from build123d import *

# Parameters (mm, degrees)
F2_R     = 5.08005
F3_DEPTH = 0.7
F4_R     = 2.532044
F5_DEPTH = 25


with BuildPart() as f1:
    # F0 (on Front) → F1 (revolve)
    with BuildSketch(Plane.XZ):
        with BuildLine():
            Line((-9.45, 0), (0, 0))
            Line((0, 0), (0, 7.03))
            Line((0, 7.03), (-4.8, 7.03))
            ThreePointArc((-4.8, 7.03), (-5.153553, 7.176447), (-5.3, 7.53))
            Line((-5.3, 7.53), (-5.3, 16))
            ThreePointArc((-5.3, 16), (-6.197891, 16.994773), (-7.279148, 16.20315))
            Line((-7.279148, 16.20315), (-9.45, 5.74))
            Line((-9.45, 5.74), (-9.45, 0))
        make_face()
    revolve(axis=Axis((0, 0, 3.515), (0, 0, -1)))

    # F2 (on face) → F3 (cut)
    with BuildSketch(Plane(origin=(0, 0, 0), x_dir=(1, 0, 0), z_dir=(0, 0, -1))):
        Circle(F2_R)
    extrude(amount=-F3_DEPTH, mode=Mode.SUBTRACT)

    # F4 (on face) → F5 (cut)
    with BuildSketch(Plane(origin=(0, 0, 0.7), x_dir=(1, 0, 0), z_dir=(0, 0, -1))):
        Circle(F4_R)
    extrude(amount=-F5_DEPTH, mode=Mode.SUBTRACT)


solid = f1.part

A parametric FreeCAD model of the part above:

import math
import FreeCAD as App
import Part
import Sketcher
from FreeCAD import Vector
Q = App.Units.Quantity

doc = App.newDocument("Part")
body = doc.addObject("PartDesign::Body", "Body")

sketch1 = body.newObject("Sketcher::SketchObject", "Sketch")
sketch1.AttachmentSupport = (doc.getObject("XZ_Plane"), [""])
sketch1.MapMode = "FlatFace"
sketch1.addGeometry(Part.LineSegment(Vector(-9.45, 0, 0), Vector(0, 0, 0)), False)
sketch1.addGeometry(Part.LineSegment(Vector(0, 0, 0), Vector(0, 7.03, 0)), False)
sketch1.addGeometry(Part.LineSegment(Vector(0, 7.03, 0), Vector(-4.8, 7.03, 0)), False)
sketch1.addGeometry(Part.ArcOfCircle(Part.Circle(Vector(-4.799999, 7.530001, 0), Vector(0, 0, 1), 0.500001), math.radians(-179.999847), math.radians(-90.000153)), False)
sketch1.addGeometry(Part.LineSegment(Vector(-5.3, 7.53, 0), Vector(-5.3, 16, 0)), False)
sketch1.addGeometry(Part.ArcOfCircle(Part.Circle(Vector(-6.3, 16, 0), Vector(0, 0, 1), 1), math.radians(0.000024), math.radians(168.278755)), False)
sketch1.addGeometry(Part.LineSegment(Vector(-7.279148, 16.20315, 0), Vector(-9.45, 5.74, 0)), False)
sketch1.addGeometry(Part.LineSegment(Vector(-9.45, 5.74, 0), Vector(-9.45, 0, 0)), False)
sketch1.addConstraint(Sketcher.Constraint("Coincident", 0, 2, 1, 1))
sketch1.addConstraint(Sketcher.Constraint("Coincident", 1, 2, 2, 1))
sketch1.addConstraint(Sketcher.Constraint("Coincident", 2, 2, 3, 2))
sketch1.addConstraint(Sketcher.Constraint("Coincident", 3, 1, 4, 1))
sketch1.addConstraint(Sketcher.Constraint("Tangent", 4, 2, 5, 1))
sketch1.addConstraint(Sketcher.Constraint("Tangent", 5, 2, 6, 1))
sketch1.addConstraint(Sketcher.Constraint("Coincident", 6, 2, 7, 1))
sketch1.addConstraint(Sketcher.Constraint("Coincident", 7, 2, 0, 1))
sketch1.addConstraint(Sketcher.Constraint("Horizontal", 0))
sketch1.addConstraint(Sketcher.Constraint("Vertical", 1))
sketch1.addConstraint(Sketcher.Constraint("Horizontal", 2))
sketch1.addConstraint(Sketcher.Constraint("Vertical", 4))
sketch1.addConstraint(Sketcher.Constraint("Vertical", 7))
sketch1.addConstraint(Sketcher.Constraint("Coincident", 0, 2, -1, 1))
sketch1.addConstraint(Sketcher.Constraint("Vertical", 3, 3, 2, 2))
sketch1.addConstraint(Sketcher.Constraint("Radius", 5, Q("1 mm")))
sketch1.addConstraint(Sketcher.Constraint("Radius", 3, Q("0.500001 mm")))
sketch1.addConstraint(Sketcher.Constraint("DistanceX", 2, 2, 2, 1, Q("4.8 mm")))
sketch1.addConstraint(Sketcher.Constraint("DistanceY", -1, 1, 5, 3, Q("16 mm")))
sketch1.addConstraint(Sketcher.Constraint("DistanceX", 0, 1, 0, 2, Q("9.45 mm")))
sketch1.addConstraint(Sketcher.Constraint("DistanceY", 1, 1, 1, 2, Q("7.03 mm")))
sketch1.addConstraint(Sketcher.Constraint("DistanceY", 4, 1, 4, 2, Q("8.47 mm")))
sketch1.addConstraint(Sketcher.Constraint("DistanceY", 7, 2, 7, 1, Q("5.74 mm")))
revolution = body.newObject("PartDesign::Revolution", "Revolution")
revolution.Profile = sketch1
revolution.ReferenceAxis = (sketch1, ["V_Axis"])
revolution.Angle = 360

sketch2 = body.newObject("Sketcher::SketchObject", "Sketch001")
sketch2.AttachmentSupport = (doc.getObject("XY_Plane"), [""])
sketch2.MapMode = "FlatFace"
sketch2.addGeometry(Part.Circle(Vector(0, 0, 0), Vector(0, 0, 1), 5.08005), False)
sketch2.addConstraint(Sketcher.Constraint("Coincident", 0, 3, -1, 1))
sketch2.addConstraint(Sketcher.Constraint("Diameter", 0, Q("10.1601 mm")))
pocket1 = body.newObject("PartDesign::Pocket", "Pocket")
pocket1.Profile = sketch2
pocket1.Length = 0.7
pocket1.Reversed = True

sketch3 = body.newObject("Sketcher::SketchObject", "Sketch002")
sketch3.AttachmentSupport = (doc.getObject("XY_Plane"), [""])
sketch3.MapMode = "FlatFace"
sketch3.AttachmentOffset = App.Placement(Vector(0, 0, 0.7), App.Rotation())
sketch3.addGeometry(Part.Circle(Vector(0, 0, 0), Vector(0, 0, 1), 2.532044), False)
sketch3.addConstraint(Sketcher.Constraint("Coincident", 0, 3, -1, 1))
sketch3.addConstraint(Sketcher.Constraint("Diameter", 0, Q("5.064088 mm")))
pocket2 = body.newObject("PartDesign::Pocket", "Pocket001")
pocket2.Profile = sketch3
pocket2.Length = 25
pocket2.Reversed = True

doc.recompute()
